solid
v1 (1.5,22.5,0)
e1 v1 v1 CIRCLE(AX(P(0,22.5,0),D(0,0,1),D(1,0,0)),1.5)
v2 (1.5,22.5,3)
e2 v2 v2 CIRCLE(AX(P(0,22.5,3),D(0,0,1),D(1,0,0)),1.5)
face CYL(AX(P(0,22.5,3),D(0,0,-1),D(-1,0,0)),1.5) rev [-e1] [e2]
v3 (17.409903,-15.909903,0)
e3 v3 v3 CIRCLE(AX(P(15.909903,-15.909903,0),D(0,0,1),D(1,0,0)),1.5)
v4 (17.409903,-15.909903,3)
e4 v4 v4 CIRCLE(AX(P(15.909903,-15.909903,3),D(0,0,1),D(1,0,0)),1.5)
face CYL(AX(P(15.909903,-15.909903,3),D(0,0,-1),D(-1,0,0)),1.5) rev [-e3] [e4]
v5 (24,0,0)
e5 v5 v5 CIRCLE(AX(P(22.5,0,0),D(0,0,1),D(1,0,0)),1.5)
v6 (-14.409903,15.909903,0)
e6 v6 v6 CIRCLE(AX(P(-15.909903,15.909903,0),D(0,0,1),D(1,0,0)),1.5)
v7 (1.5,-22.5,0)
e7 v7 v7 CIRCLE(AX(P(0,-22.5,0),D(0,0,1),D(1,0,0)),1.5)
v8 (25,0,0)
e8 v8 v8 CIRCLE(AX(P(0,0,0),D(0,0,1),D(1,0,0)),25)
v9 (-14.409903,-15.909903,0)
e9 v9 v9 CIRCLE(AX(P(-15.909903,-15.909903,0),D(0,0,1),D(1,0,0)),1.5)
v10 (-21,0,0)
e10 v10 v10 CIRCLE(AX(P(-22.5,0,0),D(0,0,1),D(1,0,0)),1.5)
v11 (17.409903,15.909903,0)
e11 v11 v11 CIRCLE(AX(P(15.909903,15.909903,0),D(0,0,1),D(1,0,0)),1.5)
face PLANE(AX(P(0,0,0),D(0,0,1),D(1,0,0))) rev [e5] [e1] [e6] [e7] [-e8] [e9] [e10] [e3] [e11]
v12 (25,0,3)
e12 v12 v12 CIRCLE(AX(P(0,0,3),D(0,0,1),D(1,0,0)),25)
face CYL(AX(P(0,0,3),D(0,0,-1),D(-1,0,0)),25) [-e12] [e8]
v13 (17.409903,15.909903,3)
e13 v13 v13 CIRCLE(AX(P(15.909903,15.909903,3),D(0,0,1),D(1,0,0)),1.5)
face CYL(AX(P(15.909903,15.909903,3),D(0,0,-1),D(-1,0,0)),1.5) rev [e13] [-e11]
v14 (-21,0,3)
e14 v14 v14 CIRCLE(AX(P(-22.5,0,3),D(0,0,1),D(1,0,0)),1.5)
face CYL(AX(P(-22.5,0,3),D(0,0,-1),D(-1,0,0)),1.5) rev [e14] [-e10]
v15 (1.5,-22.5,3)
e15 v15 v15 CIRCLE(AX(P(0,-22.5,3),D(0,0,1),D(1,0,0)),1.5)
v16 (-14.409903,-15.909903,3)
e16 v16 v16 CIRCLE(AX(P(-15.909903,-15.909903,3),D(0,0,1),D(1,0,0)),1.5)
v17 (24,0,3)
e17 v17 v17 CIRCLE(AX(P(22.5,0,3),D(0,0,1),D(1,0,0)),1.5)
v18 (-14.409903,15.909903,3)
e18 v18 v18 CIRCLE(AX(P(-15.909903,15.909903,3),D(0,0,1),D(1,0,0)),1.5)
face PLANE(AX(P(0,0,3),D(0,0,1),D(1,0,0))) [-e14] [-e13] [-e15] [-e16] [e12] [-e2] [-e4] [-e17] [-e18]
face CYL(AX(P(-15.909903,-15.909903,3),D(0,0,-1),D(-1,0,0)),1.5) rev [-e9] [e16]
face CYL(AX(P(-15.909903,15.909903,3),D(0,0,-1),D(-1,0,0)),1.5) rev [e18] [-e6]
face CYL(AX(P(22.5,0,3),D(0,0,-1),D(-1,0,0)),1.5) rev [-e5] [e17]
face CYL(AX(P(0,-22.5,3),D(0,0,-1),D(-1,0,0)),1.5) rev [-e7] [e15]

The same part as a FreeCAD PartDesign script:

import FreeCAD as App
import Part
import Sketcher
from FreeCAD import Vector

doc = App.newDocument("Part")
body = doc.addObject("PartDesign::Body", "Body")

# Sketch on XY plane
sketch1 = doc.addObject("Sketcher::SketchObject", "Sketch")
body.addObject(sketch1)
sketch1.AttachmentSupport = (doc.XY_Plane, [""])
sketch1.MapMode = "FlatFace"
sketch1.addGeometry(Part.Circle(Vector(0, 0, 0), Vector(0, 0, 1), 25), False)
sketch1.addGeometry(Part.Circle(Vector(-15.909903, -15.909903, 0), Vector(0, 0, 1), 1.5), False)
sketch1.addGeometry(Part.Circle(Vector(0, -22.5, 0), Vector(0, 0, 1), 1.5), False)
sketch1.addGeometry(Part.Circle(Vector(15.909903, -15.909903, 0), Vector(0, 0, 1), 1.5), False)
sketch1.addGeometry(Part.Circle(Vector(-22.5, 0, 0), Vector(0, 0, 1), 1.5), False)
sketch1.addGeometry(Part.Circle(Vector(-15.909903, 15.909903, 0), Vector(0, 0, 1), 1.5), False)
sketch1.addGeometry(Part.Circle(Vector(22.5, 0, 0), Vector(0, 0, 1), 1.5), False)
sketch1.addGeometry(Part.Circle(Vector(0, 22.5, 0), Vector(0, 0, 1), 1.5), False)
sketch1.addGeometry(Part.Circle(Vector(15.909903, 15.909903, 0), Vector(0, 0, 1), 1.5), False)
sketch1.addConstraint(Sketcher.Constraint("Coincident", 0, 3, -1, 1))
sketch1.addConstraint(Sketcher.Constraint("Equal", 1, 2))
sketch1.addConstraint(Sketcher.Constraint("Equal", 2, 3))
sketch1.addConstraint(Sketcher.Constraint("Equal", 3, 4))
sketch1.addConstraint(Sketcher.Constraint("Equal", 4, 5))
sketch1.addConstraint(Sketcher.Constraint("Equal", 5, 6))
sketch1.addConstraint(Sketcher.Constraint("Equal", 6, 7))
sketch1.addConstraint(Sketcher.Constraint("Equal", 7, 8))
sketch1.addConstraint(Sketcher.Constraint("Symmetric", 3, 3, 5, 3, -1, 1))
sketch1.addConstraint(Sketcher.Constraint("Symmetric", 4, 3, 6, 3, -1, 1))
sketch1.addConstraint(Sketcher.Constraint("Symmetric", 2, 3, 7, 3, -1, 1))
sketch1.addConstraint(Sketcher.Constraint("Symmetric", 1, 3, 8, 3, -1, 1))
sketch1.addConstraint(Sketcher.Constraint("Symmetric", 1, 3, 3, 3, -2))
sketch1.addConstraint(Sketcher.Constraint("PointOnObject", 2, 3, -2))
sketch1.addConstraint(Sketcher.Constraint("PointOnObject", 4, 3, -1))
sketch1.addConstraint(Sketcher.Constraint("Diameter", 0, 50.0))
sketch1.addConstraint(Sketcher.Constraint("Diameter", 1, 3.0))
sketch1.addConstraint(Sketcher.Constraint("DistanceY", 2, 3, -1, 1, 22.5))
sketch1.addConstraint(Sketcher.Constraint("DistanceX", 4, 3, -1, 1, 22.5))
sketch1.addConstraint(Sketcher.Constraint("DistanceX", 1, 3, -1, 1, 15.909903))
sketch1.addConstraint(Sketcher.Constraint("DistanceY", 1, 3, -1, 1, 15.909903))
pad1 = doc.addObject("PartDesign::Pad", "Pad")
body.addObject(pad1)
pad1.Profile = sketch1
pad1.Length = 3

doc.recompute()
